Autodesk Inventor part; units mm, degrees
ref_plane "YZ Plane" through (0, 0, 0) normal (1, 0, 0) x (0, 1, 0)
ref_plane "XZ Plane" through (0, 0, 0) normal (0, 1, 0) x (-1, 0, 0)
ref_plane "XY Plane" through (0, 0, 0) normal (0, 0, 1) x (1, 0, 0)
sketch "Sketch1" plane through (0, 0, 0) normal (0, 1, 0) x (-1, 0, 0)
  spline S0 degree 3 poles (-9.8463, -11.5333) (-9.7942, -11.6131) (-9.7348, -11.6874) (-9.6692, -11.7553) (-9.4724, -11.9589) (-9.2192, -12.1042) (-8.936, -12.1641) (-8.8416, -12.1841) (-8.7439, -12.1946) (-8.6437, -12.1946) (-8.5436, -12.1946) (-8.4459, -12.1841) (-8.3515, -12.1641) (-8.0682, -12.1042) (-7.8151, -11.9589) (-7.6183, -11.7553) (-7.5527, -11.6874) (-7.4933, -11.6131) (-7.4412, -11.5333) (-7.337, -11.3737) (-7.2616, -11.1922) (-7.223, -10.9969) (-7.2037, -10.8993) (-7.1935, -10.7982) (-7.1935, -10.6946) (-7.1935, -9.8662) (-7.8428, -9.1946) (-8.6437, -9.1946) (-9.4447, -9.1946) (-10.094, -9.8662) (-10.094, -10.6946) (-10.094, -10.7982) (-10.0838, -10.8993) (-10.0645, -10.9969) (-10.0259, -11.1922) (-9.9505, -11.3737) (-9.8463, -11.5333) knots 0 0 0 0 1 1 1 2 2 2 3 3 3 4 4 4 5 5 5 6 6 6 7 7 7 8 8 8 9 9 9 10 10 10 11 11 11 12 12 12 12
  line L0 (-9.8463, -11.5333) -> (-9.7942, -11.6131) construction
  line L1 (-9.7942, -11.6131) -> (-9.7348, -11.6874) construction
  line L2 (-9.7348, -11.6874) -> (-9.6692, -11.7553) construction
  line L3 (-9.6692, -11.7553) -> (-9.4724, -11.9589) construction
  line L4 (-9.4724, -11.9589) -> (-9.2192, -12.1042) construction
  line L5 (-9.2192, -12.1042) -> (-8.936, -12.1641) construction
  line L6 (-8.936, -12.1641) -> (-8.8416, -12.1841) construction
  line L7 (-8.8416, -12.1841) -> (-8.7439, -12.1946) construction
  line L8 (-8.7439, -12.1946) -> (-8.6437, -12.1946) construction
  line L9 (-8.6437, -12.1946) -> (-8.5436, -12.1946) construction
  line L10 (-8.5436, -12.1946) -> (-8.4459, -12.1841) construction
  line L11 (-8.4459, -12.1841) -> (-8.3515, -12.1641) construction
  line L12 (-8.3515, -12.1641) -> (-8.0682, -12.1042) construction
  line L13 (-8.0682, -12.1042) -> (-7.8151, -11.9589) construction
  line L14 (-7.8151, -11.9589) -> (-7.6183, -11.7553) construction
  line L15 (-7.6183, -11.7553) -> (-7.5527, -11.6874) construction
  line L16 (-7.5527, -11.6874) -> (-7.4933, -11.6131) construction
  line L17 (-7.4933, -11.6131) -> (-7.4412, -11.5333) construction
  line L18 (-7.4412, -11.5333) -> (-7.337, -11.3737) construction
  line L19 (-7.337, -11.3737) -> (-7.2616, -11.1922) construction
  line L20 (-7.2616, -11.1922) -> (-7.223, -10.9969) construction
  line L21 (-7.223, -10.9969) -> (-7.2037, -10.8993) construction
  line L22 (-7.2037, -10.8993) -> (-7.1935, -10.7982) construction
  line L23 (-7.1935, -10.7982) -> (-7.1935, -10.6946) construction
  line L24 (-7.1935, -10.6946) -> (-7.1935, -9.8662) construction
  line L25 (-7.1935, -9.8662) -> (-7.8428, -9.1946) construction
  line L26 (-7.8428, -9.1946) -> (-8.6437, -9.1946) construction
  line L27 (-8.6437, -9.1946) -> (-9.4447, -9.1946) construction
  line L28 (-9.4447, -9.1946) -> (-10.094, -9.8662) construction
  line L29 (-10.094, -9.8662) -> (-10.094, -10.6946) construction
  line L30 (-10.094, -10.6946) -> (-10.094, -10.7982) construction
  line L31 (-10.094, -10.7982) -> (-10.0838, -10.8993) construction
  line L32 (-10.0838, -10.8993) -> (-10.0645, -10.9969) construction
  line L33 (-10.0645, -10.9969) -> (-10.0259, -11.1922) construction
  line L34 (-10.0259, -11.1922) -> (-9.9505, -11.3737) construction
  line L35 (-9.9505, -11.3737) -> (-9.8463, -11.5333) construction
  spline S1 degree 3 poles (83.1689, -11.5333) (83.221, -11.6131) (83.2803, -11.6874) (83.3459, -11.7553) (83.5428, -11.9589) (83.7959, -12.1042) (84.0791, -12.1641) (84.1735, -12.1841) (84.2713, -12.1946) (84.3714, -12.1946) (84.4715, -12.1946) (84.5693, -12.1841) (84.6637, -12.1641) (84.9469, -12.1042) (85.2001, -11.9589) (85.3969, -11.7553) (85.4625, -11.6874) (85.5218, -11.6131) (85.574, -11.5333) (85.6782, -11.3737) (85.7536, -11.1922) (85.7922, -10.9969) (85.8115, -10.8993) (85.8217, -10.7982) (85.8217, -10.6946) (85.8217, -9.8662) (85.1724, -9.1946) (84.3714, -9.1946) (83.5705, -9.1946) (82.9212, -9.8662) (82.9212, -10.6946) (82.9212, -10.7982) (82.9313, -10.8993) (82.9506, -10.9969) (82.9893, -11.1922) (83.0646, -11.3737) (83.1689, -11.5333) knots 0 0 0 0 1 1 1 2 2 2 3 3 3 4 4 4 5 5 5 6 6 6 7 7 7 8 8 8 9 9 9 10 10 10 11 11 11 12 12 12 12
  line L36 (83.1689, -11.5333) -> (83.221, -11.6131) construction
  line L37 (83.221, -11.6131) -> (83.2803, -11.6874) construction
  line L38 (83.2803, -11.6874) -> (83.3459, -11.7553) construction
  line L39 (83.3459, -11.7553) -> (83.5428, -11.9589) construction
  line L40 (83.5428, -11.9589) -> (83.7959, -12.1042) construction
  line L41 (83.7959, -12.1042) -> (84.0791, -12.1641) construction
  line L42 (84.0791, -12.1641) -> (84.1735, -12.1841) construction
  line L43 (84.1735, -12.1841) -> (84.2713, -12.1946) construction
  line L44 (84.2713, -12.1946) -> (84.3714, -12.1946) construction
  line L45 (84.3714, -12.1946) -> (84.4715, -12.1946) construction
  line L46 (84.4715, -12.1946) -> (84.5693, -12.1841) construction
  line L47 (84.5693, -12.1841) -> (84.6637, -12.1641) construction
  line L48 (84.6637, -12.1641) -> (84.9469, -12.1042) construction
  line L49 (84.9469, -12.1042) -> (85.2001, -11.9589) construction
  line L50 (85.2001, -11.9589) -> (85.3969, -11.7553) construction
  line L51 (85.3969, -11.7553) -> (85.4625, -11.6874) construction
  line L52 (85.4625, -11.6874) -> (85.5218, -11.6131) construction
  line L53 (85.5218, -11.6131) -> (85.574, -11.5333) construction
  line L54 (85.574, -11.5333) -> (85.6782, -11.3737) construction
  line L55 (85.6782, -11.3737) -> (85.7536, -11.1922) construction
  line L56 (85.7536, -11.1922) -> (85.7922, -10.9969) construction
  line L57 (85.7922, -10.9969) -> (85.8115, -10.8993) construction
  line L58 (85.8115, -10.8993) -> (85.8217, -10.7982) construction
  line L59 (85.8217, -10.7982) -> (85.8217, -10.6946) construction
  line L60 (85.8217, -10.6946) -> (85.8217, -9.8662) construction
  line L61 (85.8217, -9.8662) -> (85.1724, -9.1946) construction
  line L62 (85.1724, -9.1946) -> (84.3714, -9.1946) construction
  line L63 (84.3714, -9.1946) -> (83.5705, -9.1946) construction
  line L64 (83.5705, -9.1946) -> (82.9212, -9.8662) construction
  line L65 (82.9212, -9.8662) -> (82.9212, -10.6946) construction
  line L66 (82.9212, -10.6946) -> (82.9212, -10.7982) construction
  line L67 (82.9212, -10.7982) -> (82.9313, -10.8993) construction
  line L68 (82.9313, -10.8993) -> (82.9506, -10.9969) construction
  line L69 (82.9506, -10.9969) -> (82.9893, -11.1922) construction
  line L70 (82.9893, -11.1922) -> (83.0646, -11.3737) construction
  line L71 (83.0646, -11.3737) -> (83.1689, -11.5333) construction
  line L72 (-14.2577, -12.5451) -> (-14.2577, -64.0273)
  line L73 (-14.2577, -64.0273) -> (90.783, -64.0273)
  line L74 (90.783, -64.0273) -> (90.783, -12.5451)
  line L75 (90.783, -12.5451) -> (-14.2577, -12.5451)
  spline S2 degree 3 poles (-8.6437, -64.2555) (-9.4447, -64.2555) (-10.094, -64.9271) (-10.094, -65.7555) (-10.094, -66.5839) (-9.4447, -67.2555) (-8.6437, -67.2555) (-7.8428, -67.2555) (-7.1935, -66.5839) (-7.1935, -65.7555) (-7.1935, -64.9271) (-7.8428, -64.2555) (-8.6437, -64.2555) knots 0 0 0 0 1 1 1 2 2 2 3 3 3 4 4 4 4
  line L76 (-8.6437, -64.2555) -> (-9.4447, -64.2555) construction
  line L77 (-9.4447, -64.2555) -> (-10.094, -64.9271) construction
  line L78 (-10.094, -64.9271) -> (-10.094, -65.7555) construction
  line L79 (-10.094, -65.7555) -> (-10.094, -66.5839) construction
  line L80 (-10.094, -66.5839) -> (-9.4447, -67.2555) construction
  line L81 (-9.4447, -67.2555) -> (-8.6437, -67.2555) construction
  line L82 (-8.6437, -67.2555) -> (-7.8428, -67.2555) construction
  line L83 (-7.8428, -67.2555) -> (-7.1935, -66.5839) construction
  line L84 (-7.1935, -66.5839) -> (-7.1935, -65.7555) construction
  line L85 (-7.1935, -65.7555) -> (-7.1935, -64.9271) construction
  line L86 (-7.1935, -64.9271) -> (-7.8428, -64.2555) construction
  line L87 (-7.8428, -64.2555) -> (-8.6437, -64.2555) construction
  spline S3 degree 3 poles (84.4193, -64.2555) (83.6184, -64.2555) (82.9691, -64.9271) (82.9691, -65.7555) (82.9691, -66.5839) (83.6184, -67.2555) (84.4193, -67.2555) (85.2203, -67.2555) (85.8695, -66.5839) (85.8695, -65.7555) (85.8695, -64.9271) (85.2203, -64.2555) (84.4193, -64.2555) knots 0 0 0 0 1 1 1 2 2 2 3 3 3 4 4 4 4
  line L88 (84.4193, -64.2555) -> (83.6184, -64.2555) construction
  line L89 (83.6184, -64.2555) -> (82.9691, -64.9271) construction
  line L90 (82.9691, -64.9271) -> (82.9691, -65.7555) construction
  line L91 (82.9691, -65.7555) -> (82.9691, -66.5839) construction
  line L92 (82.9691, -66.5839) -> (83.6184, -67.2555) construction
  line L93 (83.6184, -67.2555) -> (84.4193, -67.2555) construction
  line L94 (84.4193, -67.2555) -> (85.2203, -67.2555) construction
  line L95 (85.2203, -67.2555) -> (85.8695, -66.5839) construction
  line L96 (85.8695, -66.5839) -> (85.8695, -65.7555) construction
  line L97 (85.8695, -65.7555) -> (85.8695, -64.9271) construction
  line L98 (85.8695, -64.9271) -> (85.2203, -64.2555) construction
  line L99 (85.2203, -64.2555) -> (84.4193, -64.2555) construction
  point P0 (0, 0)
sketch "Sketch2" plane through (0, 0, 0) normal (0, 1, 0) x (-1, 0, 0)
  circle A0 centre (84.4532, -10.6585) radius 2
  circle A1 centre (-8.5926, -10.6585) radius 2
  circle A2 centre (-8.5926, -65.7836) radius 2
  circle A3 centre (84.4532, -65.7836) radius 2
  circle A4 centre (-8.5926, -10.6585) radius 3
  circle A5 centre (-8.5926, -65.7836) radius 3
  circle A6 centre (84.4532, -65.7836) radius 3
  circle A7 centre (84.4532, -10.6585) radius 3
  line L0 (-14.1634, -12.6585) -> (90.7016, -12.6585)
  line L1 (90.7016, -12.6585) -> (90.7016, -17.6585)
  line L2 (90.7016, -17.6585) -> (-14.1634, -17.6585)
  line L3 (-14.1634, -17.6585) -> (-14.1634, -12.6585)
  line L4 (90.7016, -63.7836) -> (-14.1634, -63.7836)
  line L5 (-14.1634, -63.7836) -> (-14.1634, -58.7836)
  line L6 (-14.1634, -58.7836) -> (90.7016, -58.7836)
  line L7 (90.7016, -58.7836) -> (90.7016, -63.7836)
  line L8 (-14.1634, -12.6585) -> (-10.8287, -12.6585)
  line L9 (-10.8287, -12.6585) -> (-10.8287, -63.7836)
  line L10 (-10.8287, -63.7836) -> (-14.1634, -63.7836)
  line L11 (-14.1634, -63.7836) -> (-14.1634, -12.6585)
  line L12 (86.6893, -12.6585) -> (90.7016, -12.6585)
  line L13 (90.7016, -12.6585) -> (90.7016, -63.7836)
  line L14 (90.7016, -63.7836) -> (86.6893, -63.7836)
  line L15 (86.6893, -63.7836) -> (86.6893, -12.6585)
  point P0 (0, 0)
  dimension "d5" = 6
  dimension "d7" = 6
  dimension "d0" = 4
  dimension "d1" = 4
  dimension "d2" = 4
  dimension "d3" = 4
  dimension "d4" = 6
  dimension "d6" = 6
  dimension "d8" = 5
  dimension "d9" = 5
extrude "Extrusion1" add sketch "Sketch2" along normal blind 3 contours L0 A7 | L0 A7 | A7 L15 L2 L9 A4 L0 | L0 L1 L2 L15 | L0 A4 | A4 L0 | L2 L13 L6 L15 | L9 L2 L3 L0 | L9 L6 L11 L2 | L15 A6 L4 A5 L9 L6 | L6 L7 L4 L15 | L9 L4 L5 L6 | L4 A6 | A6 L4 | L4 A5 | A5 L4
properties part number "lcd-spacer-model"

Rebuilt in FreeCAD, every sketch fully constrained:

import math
import FreeCAD as App
import Part
import Sketcher

doc = App.newDocument("Part")
body = doc.addObject("PartDesign::Body", "Body")

sketch1 = body.newObject("Sketcher::SketchObject", "Sketch")
sketch1.AttachmentSupport = (doc.getObject("XZ_Plane"), [""])
sketch1.MapMode = "FlatFace"
sketch1.addGeometry(Part.LineSegment(App.Vector(-82.2, -12.7, 0), App.Vector(6.4, -12.7, 0)), False)
sketch1.addGeometry(Part.ArcOfCircle(Part.Circle(App.Vector(8.6, -10.7, 0), App.Vector(0, 0, 1), 3), math.radians(-42), math.radians(222)), False)
sketch1.addGeometry(Part.LineSegment(App.Vector(10.8, -12.7, 0), App.Vector(14.2, -12.7, 0)), False)
sketch1.addGeometry(Part.LineSegment(App.Vector(14.2, -12.7, 0), App.Vector(14.2, -63.8, 0)), False)
sketch1.addGeometry(Part.LineSegment(App.Vector(14.2, -63.8, 0), App.Vector(10.8, -63.8, 0)), False)
sketch1.addGeometry(Part.ArcOfCircle(Part.Circle(App.Vector(8.6, -65.8, 0), App.Vector(0, 0, 1), 3), math.radians(138), math.radians(402)), False)
sketch1.addGeometry(Part.LineSegment(App.Vector(6.4, -63.8, 0), App.Vector(-82.2, -63.8, 0)), False)
sketch1.addGeometry(Part.ArcOfCircle(Part.Circle(App.Vector(-84.5, -65.8, 0), App.Vector(0, 0, 1), 3), math.radians(138), math.radians(402)), False)
sketch1.addGeometry(Part.LineSegment(App.Vector(-86.7, -63.8, 0), App.Vector(-90.7, -63.8, 0)), False)
sketch1.addGeometry(Part.LineSegment(App.Vector(-90.7, -63.8, 0), App.Vector(-90.7, -12.7, 0)), False)
sketch1.addGeometry(Part.LineSegment(App.Vector(-90.7, -12.7, 0), App.Vector(-86.7, -12.7, 0)), False)
sketch1.addGeometry(Part.ArcOfCircle(Part.Circle(App.Vector(-84.5, -10.7, 0), App.Vector(0, 0, 1), 3), math.radians(-42), math.radians(222)), False)
sketch1.addGeometry(Part.Circle(App.Vector(-84.5, -10.7, 0), App.Vector(0, 0, 1), 2), False)
sketch1.addGeometry(Part.LineSegment(App.Vector(10.8, -17.7, 0), App.Vector(-86.7, -17.7, 0)), False)
sketch1.addGeometry(Part.LineSegment(App.Vector(-86.7, -17.7, 0), App.Vector(-86.7, -58.8, 0)), False)
sketch1.addGeometry(Part.LineSegment(App.Vector(-86.7, -58.8, 0), App.Vector(10.8, -58.8, 0)), False)
sketch1.addGeometry(Part.LineSegment(App.Vector(10.8, -58.8, 0), App.Vector(10.8, -17.7, 0)), False)
sketch1.addGeometry(Part.Circle(App.Vector(8.6, -10.7, 0), App.Vector(0, 0, 1), 2), False)
sketch1.addGeometry(Part.Circle(App.Vector(-84.5, -65.8, 0), App.Vector(0, 0, 1), 2), False)
sketch1.addGeometry(Part.Circle(App.Vector(8.6, -65.8, 0), App.Vector(0, 0, 1), 2), False)
sketch1.addConstraint(Sketcher.Constraint("Coincident", 0, 2, 1, 2))
sketch1.addConstraint(Sketcher.Constraint("Coincident", 1, 1, 2, 1))
sketch1.addConstraint(Sketcher.Constraint("Coincident", 2, 2, 3, 1))
sketch1.addConstraint(Sketcher.Constraint("Coincident", 3, 2, 4, 1))
sketch1.addConstraint(Sketcher.Constraint("Coincident", 4, 2, 5, 2))
sketch1.addConstraint(Sketcher.Constraint("Coincident", 5, 1, 6, 1))
sketch1.addConstraint(Sketcher.Constraint("Coincident", 6, 2, 7, 2))
sketch1.addConstraint(Sketcher.Constraint("Coincident", 7, 1, 8, 1))
sketch1.addConstraint(Sketcher.Constraint("Coincident", 8, 2, 9, 1))
sketch1.addConstraint(Sketcher.Constraint("Coincident", 9, 2, 10, 1))
sketch1.addConstraint(Sketcher.Constraint("Coincident", 10, 2, 11, 2))
sketch1.addConstraint(Sketcher.Constraint("Coincident", 11, 1, 0, 1))
sketch1.addConstraint(Sketcher.Constraint("Coincident", 13, 2, 14, 1))
sketch1.addConstraint(Sketcher.Constraint("Coincident", 14, 2, 15, 1))
sketch1.addConstraint(Sketcher.Constraint("Coincident", 15, 2, 16, 1))
sketch1.addConstraint(Sketcher.Constraint("Coincident", 16, 2, 13, 1))
sketch1.addConstraint(Sketcher.Constraint("Horizontal", 0))
sketch1.addConstraint(Sketcher.Constraint("Horizontal", 2))
sketch1.addConstraint(Sketcher.Constraint("Vertical", 3))
sketch1.addConstraint(Sketcher.Constraint("Horizontal", 4))
sketch1.addConstraint(Sketcher.Constraint("Horizontal", 6))
sketch1.addConstraint(Sketcher.Constraint("Horizontal", 8))
sketch1.addConstraint(Sketcher.Constraint("Vertical", 9))
sketch1.addConstraint(Sketcher.Constraint("Horizontal", 10))
sketch1.addConstraint(Sketcher.Constraint("Horizontal", 13))
sketch1.addConstraint(Sketcher.Constraint("Vertical", 14))
sketch1.addConstraint(Sketcher.Constraint("Horizontal", 15))
sketch1.addConstraint(Sketcher.Constraint("Vertical", 16))
sketch1.addConstraint(Sketcher.Constraint("Coincident", 12, 3, 11, 3))
sketch1.addConstraint(Sketcher.Constraint("Coincident", 17, 3, 1, 3))
sketch1.addConstraint(Sketcher.Constraint("Coincident", 18, 3, 7, 3))
sketch1.addConstraint(Sketcher.Constraint("Coincident", 19, 3, 5, 3))
sketch1.addConstraint(Sketcher.Constraint("Equal", 1, 5))
sketch1.addConstraint(Sketcher.Constraint("Equal", 5, 7))
sketch1.addConstraint(Sketcher.Constraint("Equal", 7, 11))
sketch1.addConstraint(Sketcher.Constraint("Equal", 12, 17))
sketch1.addConstraint(Sketcher.Constraint("Equal", 17, 18))
sketch1.addConstraint(Sketcher.Constraint("Equal", 18, 19))
sketch1.addConstraint(Sketcher.Constraint("Horizontal", 5, 3, 7, 3))
sketch1.addConstraint(Sketcher.Constraint("Horizontal", 1, 3, 11, 3))
sketch1.addConstraint(Sketcher.Constraint("Horizontal", 0, 2, 1, 1))
sketch1.addConstraint(Sketcher.Constraint("Horizontal", 4, 2, 5, 1))
sketch1.addConstraint(Sketcher.Constraint("Horizontal", 6, 2, 7, 1))
sketch1.addConstraint(Sketcher.Constraint("Horizontal", 2, 2, 9, 2))
sketch1.addConstraint(Sketcher.Constraint("Vertical", 1, 3, 5, 3))
sketch1.addConstraint(Sketcher.Constraint("Vertical", 7, 3, 11, 3))
sketch1.addConstraint(Sketcher.Constraint("Vertical", 1, 1, 4, 2))
sketch1.addConstraint(Sketcher.Constraint("Vertical", 10, 2, 13, 2))
sketch1.addConstraint(Sketcher.Constraint("Vertical", 4, 2, 15, 2))
sketch1.addConstraint(Sketcher.Constraint("Diameter", 12, 4.0))
sketch1.addConstraint(Sketcher.Constraint("Radius", 1, 3.0))
sketch1.addConstraint(Sketcher.Constraint("DistanceY", 13, 2, 10, 2, 5.0))
sketch1.addConstraint(Sketcher.Constraint("DistanceY", 7, 1, 14, 2, 5.0))
sketch1.addConstraint(Sketcher.Constraint("DistanceY", 0, 2, 1, 3, 2.0))
sketch1.addConstraint(Sketcher.Constraint("DistanceX", 13, 2, 13, 1, 97.518))
sketch1.addConstraint(Sketcher.Constraint("DistanceY", 3, 2, 3, 1, 51.125))
sketch1.addConstraint(Sketcher.Constraint("DistanceX", 2, 1, 2, 2, 3.3347))
sketch1.addConstraint(Sketcher.Constraint("DistanceX", 8, 2, 8, 1, 4.0123))
sketch1.addConstraint(Sketcher.Constraint("DistanceX", -1, 1, 1, 3, 8.5926))
sketch1.addConstraint(Sketcher.Constraint("DistanceY", 1, 3, -1, 1, 10.6585))
pad1 = body.newObject("PartDesign::Pad", "Pad")
pad1.Profile = sketch1
pad1.Length = 3
pad1.Reversed = True

doc.recompute()
